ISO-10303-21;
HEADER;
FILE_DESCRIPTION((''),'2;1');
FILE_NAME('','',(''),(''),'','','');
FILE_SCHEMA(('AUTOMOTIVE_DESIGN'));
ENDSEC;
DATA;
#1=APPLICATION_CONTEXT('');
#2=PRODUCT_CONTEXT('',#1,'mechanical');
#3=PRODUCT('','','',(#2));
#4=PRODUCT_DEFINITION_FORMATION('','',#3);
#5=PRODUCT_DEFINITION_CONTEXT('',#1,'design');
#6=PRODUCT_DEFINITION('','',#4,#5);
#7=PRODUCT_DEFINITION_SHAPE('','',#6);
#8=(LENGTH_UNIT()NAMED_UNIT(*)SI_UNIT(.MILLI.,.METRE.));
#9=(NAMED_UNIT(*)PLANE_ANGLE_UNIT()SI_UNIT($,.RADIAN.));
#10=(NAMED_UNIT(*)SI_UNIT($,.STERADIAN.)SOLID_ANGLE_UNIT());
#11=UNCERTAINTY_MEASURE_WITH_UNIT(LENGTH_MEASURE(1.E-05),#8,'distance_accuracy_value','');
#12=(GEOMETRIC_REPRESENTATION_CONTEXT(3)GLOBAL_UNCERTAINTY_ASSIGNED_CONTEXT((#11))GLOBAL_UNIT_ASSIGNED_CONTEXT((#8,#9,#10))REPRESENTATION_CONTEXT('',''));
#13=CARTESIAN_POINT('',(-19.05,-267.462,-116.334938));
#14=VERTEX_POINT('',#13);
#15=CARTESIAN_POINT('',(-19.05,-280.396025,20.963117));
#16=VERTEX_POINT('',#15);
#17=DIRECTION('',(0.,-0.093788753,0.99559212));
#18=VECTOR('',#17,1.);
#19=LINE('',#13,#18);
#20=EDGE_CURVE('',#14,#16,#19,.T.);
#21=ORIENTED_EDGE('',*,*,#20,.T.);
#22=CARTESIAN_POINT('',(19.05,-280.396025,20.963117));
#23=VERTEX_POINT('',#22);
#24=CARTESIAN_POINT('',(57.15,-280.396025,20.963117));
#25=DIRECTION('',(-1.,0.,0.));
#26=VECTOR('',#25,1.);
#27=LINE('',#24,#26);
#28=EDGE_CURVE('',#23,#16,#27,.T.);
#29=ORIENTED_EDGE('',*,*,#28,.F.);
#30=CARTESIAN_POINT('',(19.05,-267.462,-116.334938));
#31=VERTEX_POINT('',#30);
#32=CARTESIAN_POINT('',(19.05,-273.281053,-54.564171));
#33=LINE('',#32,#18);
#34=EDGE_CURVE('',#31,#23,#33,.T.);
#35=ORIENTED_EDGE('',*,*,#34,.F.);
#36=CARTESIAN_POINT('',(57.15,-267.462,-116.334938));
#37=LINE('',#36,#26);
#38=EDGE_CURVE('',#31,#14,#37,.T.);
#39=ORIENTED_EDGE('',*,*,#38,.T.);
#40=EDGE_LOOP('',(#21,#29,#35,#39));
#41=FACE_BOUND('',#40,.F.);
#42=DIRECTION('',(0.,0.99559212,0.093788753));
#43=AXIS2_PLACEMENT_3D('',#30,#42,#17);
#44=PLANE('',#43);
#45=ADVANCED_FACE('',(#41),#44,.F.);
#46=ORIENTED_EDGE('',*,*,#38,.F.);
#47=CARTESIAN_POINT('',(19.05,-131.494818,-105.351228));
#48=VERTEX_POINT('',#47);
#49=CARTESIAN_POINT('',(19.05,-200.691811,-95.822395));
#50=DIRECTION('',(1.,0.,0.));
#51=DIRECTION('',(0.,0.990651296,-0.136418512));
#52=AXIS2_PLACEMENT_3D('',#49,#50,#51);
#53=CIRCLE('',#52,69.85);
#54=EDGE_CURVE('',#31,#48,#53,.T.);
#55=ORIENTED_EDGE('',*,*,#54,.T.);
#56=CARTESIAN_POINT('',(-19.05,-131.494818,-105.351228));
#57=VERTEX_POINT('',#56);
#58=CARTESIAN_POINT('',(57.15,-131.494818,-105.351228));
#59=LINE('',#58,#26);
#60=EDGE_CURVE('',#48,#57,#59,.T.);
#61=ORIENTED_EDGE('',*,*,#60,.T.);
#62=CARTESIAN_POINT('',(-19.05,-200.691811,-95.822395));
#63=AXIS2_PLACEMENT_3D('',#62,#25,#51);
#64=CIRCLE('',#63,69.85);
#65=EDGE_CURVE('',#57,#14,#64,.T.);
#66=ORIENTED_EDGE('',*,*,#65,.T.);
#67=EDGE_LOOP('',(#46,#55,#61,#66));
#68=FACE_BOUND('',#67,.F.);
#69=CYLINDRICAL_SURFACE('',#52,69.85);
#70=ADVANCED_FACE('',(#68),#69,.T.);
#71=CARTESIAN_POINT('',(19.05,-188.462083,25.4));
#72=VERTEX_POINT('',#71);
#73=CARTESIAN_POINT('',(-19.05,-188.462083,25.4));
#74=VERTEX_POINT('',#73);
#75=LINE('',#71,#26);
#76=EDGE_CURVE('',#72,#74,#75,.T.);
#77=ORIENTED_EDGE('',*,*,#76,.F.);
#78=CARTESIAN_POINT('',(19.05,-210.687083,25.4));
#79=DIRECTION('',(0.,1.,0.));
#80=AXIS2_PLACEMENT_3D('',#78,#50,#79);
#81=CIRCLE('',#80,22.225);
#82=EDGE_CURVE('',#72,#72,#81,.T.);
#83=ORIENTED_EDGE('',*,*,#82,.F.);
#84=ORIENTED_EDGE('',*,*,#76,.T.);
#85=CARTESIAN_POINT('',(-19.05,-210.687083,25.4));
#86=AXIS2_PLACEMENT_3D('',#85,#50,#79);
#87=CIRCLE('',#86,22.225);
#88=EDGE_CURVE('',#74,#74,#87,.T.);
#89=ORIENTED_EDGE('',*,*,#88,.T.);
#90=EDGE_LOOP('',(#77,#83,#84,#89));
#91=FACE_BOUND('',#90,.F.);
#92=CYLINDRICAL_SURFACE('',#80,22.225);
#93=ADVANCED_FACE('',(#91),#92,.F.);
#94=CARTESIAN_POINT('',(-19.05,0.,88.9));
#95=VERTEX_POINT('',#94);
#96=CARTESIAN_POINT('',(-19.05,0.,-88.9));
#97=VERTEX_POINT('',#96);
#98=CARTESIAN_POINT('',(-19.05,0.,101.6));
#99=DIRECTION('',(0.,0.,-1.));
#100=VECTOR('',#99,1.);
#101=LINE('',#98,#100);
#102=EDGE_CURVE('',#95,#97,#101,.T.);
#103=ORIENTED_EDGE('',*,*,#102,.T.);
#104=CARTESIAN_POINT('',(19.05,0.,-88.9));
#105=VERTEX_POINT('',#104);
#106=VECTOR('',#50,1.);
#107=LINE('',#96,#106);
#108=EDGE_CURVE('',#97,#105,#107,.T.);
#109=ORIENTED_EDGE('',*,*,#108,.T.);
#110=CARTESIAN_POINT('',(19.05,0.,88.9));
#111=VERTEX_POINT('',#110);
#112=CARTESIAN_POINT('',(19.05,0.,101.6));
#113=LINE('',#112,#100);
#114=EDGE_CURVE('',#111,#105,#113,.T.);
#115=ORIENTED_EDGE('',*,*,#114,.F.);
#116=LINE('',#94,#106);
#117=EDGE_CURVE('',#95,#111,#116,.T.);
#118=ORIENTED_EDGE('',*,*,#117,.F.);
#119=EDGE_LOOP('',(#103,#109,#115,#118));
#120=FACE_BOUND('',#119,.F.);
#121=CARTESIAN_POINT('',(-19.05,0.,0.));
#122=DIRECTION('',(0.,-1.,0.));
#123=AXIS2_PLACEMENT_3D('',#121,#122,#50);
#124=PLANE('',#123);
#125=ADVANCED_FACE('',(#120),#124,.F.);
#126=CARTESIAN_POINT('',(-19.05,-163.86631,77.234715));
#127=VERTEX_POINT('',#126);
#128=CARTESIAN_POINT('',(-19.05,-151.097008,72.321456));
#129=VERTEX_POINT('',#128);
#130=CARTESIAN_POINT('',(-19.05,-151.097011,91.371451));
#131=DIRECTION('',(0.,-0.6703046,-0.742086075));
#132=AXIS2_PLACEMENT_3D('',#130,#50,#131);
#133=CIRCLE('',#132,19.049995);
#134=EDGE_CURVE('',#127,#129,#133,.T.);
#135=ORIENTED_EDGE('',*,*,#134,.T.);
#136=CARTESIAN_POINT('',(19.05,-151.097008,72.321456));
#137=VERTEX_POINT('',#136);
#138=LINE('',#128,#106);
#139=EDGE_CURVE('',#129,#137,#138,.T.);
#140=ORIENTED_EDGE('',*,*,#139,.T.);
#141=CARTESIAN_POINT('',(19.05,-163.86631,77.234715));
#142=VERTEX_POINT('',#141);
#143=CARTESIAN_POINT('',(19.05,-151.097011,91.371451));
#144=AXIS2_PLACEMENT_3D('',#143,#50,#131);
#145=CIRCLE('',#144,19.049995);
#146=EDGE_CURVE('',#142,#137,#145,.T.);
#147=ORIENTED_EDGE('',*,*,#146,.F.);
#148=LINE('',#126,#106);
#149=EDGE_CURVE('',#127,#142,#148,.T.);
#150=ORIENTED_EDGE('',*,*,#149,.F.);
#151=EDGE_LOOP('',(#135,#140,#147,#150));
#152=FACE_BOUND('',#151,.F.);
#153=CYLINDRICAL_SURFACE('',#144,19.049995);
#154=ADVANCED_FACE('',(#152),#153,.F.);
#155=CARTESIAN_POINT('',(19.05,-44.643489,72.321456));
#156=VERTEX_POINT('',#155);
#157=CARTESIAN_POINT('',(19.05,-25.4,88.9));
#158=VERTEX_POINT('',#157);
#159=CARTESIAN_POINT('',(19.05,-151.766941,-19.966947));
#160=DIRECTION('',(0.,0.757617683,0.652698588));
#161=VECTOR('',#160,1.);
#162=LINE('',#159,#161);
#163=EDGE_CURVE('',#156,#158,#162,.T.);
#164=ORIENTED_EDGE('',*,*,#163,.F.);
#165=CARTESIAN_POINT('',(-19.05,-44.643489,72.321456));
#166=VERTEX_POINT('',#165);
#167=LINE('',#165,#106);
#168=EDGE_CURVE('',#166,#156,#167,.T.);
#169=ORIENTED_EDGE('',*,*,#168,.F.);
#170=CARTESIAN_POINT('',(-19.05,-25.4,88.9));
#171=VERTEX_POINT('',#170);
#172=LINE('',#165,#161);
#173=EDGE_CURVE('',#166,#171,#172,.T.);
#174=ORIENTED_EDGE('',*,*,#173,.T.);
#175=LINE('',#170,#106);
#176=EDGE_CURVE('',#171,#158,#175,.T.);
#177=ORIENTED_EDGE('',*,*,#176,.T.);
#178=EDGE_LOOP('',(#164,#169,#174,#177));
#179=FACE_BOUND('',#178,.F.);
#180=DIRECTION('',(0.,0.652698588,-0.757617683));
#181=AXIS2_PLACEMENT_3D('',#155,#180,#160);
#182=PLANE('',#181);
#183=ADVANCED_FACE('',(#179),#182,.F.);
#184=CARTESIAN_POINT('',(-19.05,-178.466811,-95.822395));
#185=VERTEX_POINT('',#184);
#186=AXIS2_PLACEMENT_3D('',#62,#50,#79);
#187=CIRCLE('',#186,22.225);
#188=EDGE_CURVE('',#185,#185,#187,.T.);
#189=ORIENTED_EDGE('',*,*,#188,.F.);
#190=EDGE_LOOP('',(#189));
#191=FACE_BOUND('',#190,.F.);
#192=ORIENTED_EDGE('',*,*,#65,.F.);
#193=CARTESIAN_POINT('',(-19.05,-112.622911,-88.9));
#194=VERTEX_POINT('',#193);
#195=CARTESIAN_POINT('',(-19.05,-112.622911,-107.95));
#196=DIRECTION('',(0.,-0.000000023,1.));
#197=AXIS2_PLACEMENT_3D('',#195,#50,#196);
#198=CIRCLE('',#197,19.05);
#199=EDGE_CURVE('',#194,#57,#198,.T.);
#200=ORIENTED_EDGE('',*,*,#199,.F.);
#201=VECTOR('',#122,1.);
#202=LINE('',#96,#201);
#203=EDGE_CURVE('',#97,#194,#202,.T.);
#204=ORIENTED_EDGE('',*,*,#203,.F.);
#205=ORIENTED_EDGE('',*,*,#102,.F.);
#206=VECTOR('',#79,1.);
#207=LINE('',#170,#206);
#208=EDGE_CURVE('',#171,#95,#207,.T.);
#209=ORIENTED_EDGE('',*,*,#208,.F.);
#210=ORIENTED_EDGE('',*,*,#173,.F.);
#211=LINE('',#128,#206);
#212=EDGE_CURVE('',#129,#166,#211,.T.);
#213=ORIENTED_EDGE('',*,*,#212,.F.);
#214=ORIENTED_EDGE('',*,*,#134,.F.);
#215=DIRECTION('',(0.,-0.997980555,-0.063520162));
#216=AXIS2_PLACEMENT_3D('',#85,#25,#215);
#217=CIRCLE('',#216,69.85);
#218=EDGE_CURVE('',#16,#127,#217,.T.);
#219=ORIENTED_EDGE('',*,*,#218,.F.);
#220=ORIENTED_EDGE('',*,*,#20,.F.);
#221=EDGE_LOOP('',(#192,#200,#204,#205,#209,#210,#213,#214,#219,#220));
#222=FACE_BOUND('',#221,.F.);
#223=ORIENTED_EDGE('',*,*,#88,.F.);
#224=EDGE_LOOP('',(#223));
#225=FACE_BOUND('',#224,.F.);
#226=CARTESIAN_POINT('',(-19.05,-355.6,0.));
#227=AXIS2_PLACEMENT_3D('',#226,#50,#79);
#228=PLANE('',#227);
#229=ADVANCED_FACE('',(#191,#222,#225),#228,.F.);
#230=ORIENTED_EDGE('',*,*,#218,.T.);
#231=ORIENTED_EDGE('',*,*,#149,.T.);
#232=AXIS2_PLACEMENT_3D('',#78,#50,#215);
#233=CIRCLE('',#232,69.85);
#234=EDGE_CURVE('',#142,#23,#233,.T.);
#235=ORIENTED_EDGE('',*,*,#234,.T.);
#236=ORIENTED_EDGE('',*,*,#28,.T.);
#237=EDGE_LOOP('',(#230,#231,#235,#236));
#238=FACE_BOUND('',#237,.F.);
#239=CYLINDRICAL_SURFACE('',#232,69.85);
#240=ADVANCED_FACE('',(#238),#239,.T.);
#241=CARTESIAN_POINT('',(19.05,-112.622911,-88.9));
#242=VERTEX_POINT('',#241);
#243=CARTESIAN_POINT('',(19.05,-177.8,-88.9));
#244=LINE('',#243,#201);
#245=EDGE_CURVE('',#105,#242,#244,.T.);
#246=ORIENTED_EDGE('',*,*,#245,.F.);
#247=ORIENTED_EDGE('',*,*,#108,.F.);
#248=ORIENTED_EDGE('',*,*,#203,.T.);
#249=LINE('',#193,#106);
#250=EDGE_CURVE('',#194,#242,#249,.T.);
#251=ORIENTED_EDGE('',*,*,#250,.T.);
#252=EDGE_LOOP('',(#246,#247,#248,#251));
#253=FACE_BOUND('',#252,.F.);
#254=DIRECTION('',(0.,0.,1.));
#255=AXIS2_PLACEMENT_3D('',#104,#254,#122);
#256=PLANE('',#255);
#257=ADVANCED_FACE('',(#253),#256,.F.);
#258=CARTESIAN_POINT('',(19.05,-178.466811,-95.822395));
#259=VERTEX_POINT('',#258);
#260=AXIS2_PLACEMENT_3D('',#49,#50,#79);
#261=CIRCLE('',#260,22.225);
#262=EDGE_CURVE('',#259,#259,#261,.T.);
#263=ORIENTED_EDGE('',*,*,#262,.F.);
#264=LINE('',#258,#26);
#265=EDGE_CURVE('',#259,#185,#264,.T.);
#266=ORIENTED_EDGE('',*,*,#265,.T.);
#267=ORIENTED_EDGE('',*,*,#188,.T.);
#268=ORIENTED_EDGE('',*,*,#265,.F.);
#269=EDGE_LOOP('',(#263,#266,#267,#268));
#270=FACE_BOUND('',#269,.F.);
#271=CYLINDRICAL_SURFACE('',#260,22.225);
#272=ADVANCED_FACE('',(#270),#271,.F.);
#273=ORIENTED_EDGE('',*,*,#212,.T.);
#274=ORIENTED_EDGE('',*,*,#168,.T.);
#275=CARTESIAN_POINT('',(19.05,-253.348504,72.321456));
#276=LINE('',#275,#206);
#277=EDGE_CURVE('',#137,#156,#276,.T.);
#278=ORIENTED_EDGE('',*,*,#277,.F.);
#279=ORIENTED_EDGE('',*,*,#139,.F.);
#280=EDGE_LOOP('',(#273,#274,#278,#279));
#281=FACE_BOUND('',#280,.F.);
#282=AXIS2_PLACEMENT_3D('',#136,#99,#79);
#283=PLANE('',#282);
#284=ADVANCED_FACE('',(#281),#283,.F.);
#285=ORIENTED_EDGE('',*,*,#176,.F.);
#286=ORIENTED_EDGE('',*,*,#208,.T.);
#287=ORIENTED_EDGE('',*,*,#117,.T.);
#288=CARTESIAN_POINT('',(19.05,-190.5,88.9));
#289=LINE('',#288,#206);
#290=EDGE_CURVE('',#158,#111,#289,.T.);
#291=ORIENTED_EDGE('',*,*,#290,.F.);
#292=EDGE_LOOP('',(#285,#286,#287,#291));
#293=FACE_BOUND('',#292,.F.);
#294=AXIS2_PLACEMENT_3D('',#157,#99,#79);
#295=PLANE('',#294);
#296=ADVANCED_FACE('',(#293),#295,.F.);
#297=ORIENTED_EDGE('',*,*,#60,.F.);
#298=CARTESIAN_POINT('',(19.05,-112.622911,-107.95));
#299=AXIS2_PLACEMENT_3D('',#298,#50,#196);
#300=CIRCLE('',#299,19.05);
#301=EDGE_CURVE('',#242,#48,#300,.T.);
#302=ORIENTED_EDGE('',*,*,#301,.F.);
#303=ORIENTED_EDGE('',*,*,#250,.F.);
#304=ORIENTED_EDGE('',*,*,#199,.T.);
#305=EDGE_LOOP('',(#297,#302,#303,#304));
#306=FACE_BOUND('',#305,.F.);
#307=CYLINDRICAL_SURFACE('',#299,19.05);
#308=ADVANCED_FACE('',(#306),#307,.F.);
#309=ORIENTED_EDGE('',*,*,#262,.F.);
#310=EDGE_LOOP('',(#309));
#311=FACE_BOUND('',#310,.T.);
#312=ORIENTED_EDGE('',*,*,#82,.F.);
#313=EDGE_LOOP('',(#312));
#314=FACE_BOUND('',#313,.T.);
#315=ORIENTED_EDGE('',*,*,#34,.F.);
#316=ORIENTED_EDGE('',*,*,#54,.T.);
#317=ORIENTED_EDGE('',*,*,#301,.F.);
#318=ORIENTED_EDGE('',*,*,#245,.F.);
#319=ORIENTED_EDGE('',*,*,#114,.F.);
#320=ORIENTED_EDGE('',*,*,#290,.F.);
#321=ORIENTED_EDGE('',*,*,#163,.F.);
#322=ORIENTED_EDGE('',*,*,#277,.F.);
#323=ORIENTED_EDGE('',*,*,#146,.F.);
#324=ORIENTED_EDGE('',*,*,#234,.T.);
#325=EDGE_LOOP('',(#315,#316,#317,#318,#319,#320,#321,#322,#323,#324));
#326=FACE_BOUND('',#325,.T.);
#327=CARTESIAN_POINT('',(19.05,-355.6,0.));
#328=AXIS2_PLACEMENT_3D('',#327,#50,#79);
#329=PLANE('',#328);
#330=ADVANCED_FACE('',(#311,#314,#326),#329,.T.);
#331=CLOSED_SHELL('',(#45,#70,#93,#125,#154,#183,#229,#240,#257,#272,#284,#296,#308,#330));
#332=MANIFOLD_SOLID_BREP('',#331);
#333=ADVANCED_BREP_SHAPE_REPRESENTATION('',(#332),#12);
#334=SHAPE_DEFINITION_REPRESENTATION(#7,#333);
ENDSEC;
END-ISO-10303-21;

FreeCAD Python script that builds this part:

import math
import FreeCAD as App
import Part
import Sketcher
from FreeCAD import Vector
Q = App.Units.Quantity

doc = App.newDocument("Part")
body = doc.addObject("PartDesign::Body", "Body")

# Sketch on XY plane
sketch1 = body.newObject("Sketcher::SketchObject", "Sketch")
sketch1.AttachmentSupport = (doc.getObject("XY_Plane"), [""])
sketch1.MapMode = "FlatFace"
sketch1.addGeometry(Part.LineSegment(Vector(-19.05, 0, 0), Vector(-19.05, -355.6, 0)), False)
sketch1.addGeometry(Part.LineSegment(Vector(-19.05, -355.6, 0), Vector(19.05, -355.6, 0)), False)
sketch1.addGeometry(Part.LineSegment(Vector(19.05, -355.6, 0), Vector(19.05, 0, 0)), False)
sketch1.addGeometry(Part.LineSegment(Vector(19.05, 0, 0), Vector(-19.05, 0, 0)), False)
sketch1.addConstraint(Sketcher.Constraint("Coincident", 0, 2, 1, 1))
sketch1.addConstraint(Sketcher.Constraint("Coincident", 1, 2, 2, 1))
sketch1.addConstraint(Sketcher.Constraint("Coincident", 2, 2, 3, 1))
sketch1.addConstraint(Sketcher.Constraint("Coincident", 3, 2, 0, 1))
sketch1.addConstraint(Sketcher.Constraint("Vertical", 0))
sketch1.addConstraint(Sketcher.Constraint("Horizontal", 1))
sketch1.addConstraint(Sketcher.Constraint("Vertical", 2))
sketch1.addConstraint(Sketcher.Constraint("Horizontal", 3))
sketch1.addConstraint(Sketcher.Constraint("Symmetric", 2, 2, 3, 2, -1, 1))
sketch1.addConstraint(Sketcher.Constraint("DistanceY", 0, 2, 0, 1, Q("14 in")))
sketch1.addConstraint(Sketcher.Constraint("DistanceX", 1, 1, 1, 2, Q("1.5 in")))
pad1 = body.newObject("PartDesign::Pad", "Pad")
pad1.Profile = sketch1
pad1.Type = "TwoLengths"
pad1.Length = Q("4 in")
pad1.Length2 = Q("7.5 in")

# Sketch on YZ plane
sketch2 = body.newObject("Sketcher::SketchObject", "Sketch001")
sketch2.AttachmentSupport = (doc.getObject("YZ_Plane"), [""])
sketch2.MapMode = "FlatFace"
sketch2.AttachmentOffset = App.Placement(Vector(0, 0, 0.75 * 25.4), App.Rotation())
sketch2.addGeometry(Part.Circle(Vector(-210.687083, 25.4, 0), Vector(0, 0, 1), 22.225), False)
sketch2.addGeometry(Part.Circle(Vector(-200.691811, -95.822395, 0), Vector(0, 0, 1), 22.225), False)
sketch2.addGeometry(Part.ArcOfCircle(Part.Circle(Vector(-210.687083, 25.4, 0), Vector(0, 0, 1), 69.85), math.radians(47.909425), math.radians(183.641889)), False)
sketch2.addGeometry(Part.ArcOfCircle(Part.Circle(Vector(-151.097011, 91.371451, 0), Vector(0, 0, 1), 19.049995), math.radians(-132.090578), math.radians(-89.999992)), False)
sketch2.addGeometry(Part.LineSegment(Vector(-151.097008, 72.321456, 0), Vector(-44.643489, 72.321456, 0)), False)
sketch2.addGeometry(Part.LineSegment(Vector(-44.643489, 72.321456, 0), Vector(-25.4, 88.9, 0)), False)
sketch2.addGeometry(Part.LineSegment(Vector(-25.4, 88.9, 0), Vector(0, 88.9, 0)), False)
sketch2.addGeometry(Part.LineSegment(Vector(0, 88.9, 0), Vector(0, 101.6, 0)), False)
sketch2.addGeometry(Part.LineSegment(Vector(0, 101.6, 0), Vector(-355.6, 101.6, 0)), False)
sketch2.addGeometry(Part.LineSegment(Vector(-355.6, 101.6, 0), Vector(-355.6, -190.5, 0)), False)
sketch2.addGeometry(Part.LineSegment(Vector(-355.6, -190.5, 0), Vector(0, -190.5, 0)), False)
sketch2.addGeometry(Part.LineSegment(Vector(0, -190.5, 0), Vector(0, -88.9, 0)), False)
sketch2.addGeometry(Part.LineSegment(Vector(0, -88.9, 0), Vector(-112.622911, -88.9, 0)), False)
sketch2.addGeometry(Part.ArcOfCircle(Part.Circle(Vector(-112.622911, -107.95, 0), Vector(0, 0, 1), 19.05), math.radians(90.000001), math.radians(172.159348)), False)
sketch2.addGeometry(Part.ArcOfCircle(Part.Circle(Vector(-200.691811, -95.822395, 0), Vector(0, 0, 1), 69.85), math.radians(-162.922461), math.radians(-7.840654)), False)
sketch2.addGeometry(Part.LineSegment(Vector(-267.462, -116.334938, 0), Vector(-280.396025, 20.963117, 0)), False)
sketch2.addConstraint(Sketcher.Constraint("Tangent", 2, 1, 3, 1))
sketch2.addConstraint(Sketcher.Constraint("Tangent", 3, 2, 4, 1))
sketch2.addConstraint(Sketcher.Constraint("Coincident", 4, 2, 5, 1))
sketch2.addConstraint(Sketcher.Constraint("Coincident", 5, 2, 6, 1))
sketch2.addConstraint(Sketcher.Constraint("Coincident", 6, 2, 7, 1))
sketch2.addConstraint(Sketcher.Constraint("Coincident", 7, 2, 8, 1))
sketch2.addConstraint(Sketcher.Constraint("Coincident", 8, 2, 9, 1))
sketch2.addConstraint(Sketcher.Constraint("Coincident", 9, 2, 10, 1))
sketch2.addConstraint(Sketcher.Constraint("Coincident", 10, 2, 11, 1))
sketch2.addConstraint(Sketcher.Constraint("Coincident", 11, 2, 12, 1))
sketch2.addConstraint(Sketcher.Constraint("Tangent", 12, 2, 13, 1))
sketch2.addConstraint(Sketcher.Constraint("Tangent", 13, 2, 14, 2))
sketch2.addConstraint(Sketcher.Constraint("Coincident", 14, 1, 15, 1))
sketch2.addConstraint(Sketcher.Constraint("Coincident", 15, 2, 2, 2))
sketch2.addConstraint(Sketcher.Constraint("Horizontal", 4))
sketch2.addConstraint(Sketcher.Constraint("Horizontal", 6))
sketch2.addConstraint(Sketcher.Constraint("Vertical", 7))
sketch2.addConstraint(Sketcher.Constraint("Horizontal", 8))
sketch2.addConstraint(Sketcher.Constraint("Vertical", 9))
sketch2.addConstraint(Sketcher.Constraint("Horizontal", 10))
sketch2.addConstraint(Sketcher.Constraint("Vertical", 11))
sketch2.addConstraint(Sketcher.Constraint("Horizontal", 12))
sketch2.addConstraint(Sketcher.Constraint("Coincident", 2, 3, 0, 3))
sketch2.addConstraint(Sketcher.Constraint("Coincident", 14, 3, 1, 3))
sketch2.addConstraint(Sketcher.Constraint("Equal", 0, 1))
sketch2.addConstraint(Sketcher.Constraint("Equal", 2, 14))
sketch2.addConstraint(Sketcher.Constraint("Symmetric", 6, 2, 11, 2, -1, 1))
sketch2.addConstraint(Sketcher.Constraint("PointOnObject", 6, 2, -2))
sketch2.addConstraint(Sketcher.Constraint("Diameter", 0, Q("1.75 in")))
sketch2.addConstraint(Sketcher.Constraint("DistanceX", 6, 1, 6, 2, Q("1 in")))
sketch2.addConstraint(Sketcher.Constraint("DistanceX", 8, 2, 8, 1, Q("14 in")))
sketch2.addConstraint(Sketcher.Constraint("DistanceY", 11, 1, 11, 2, Q("4 in")))
sketch2.addConstraint(Sketcher.Constraint("Radius", 2, Q("2.75 in")))
sketch2.addConstraint(Sketcher.Constraint("Radius", 3, Q("0.7499998 in")))
sketch2.addConstraint(Sketcher.Constraint("Radius", 13, Q("0.75 in")))
sketch2.addConstraint(Sketcher.Constraint("Distance", 5, Q("1 in")))
sketch2.addConstraint(Sketcher.Constraint("DistanceY", 7, 1, 7, 2, Q("0.5 in")))
sketch2.addConstraint(Sketcher.Constraint("DistanceY", 9, 2, 9, 1, Q("11.5 in")))
sketch2.addConstraint(Sketcher.Constraint("DistanceY", -1, 1, 0, 3, Q("1 in")))
sketch2.addConstraint(Sketcher.Constraint("DistanceX", 14, 1, -1, 1, Q("10.53 in")))
sketch2.addConstraint(Sketcher.Constraint("DistanceX", 4, 1, 4, 2, Q("106.453519 mm")))
sketch2.addConstraint(Sketcher.Constraint("DistanceX", 12, 2, 12, 1, Q("112.622911 mm")))
sketch2.addConstraint(Sketcher.Constraint("DistanceX", 1, 3, 3, 3, Q("49.5948 mm")))
sketch2.addConstraint(Sketcher.Constraint("DistanceX", 1, 3, 13, 3, Q("88.0689 mm")))
sketch2.addConstraint(Sketcher.Constraint("DistanceX", 15, 2, 2, 3, Q("69.708942 mm")))
pocket1 = body.newObject("PartDesign::Pocket", "Pocket")
pocket1.Profile = sketch2
pocket1.Length = Q("3 in")
pocket1.Midplane = True

doc.recompute()
